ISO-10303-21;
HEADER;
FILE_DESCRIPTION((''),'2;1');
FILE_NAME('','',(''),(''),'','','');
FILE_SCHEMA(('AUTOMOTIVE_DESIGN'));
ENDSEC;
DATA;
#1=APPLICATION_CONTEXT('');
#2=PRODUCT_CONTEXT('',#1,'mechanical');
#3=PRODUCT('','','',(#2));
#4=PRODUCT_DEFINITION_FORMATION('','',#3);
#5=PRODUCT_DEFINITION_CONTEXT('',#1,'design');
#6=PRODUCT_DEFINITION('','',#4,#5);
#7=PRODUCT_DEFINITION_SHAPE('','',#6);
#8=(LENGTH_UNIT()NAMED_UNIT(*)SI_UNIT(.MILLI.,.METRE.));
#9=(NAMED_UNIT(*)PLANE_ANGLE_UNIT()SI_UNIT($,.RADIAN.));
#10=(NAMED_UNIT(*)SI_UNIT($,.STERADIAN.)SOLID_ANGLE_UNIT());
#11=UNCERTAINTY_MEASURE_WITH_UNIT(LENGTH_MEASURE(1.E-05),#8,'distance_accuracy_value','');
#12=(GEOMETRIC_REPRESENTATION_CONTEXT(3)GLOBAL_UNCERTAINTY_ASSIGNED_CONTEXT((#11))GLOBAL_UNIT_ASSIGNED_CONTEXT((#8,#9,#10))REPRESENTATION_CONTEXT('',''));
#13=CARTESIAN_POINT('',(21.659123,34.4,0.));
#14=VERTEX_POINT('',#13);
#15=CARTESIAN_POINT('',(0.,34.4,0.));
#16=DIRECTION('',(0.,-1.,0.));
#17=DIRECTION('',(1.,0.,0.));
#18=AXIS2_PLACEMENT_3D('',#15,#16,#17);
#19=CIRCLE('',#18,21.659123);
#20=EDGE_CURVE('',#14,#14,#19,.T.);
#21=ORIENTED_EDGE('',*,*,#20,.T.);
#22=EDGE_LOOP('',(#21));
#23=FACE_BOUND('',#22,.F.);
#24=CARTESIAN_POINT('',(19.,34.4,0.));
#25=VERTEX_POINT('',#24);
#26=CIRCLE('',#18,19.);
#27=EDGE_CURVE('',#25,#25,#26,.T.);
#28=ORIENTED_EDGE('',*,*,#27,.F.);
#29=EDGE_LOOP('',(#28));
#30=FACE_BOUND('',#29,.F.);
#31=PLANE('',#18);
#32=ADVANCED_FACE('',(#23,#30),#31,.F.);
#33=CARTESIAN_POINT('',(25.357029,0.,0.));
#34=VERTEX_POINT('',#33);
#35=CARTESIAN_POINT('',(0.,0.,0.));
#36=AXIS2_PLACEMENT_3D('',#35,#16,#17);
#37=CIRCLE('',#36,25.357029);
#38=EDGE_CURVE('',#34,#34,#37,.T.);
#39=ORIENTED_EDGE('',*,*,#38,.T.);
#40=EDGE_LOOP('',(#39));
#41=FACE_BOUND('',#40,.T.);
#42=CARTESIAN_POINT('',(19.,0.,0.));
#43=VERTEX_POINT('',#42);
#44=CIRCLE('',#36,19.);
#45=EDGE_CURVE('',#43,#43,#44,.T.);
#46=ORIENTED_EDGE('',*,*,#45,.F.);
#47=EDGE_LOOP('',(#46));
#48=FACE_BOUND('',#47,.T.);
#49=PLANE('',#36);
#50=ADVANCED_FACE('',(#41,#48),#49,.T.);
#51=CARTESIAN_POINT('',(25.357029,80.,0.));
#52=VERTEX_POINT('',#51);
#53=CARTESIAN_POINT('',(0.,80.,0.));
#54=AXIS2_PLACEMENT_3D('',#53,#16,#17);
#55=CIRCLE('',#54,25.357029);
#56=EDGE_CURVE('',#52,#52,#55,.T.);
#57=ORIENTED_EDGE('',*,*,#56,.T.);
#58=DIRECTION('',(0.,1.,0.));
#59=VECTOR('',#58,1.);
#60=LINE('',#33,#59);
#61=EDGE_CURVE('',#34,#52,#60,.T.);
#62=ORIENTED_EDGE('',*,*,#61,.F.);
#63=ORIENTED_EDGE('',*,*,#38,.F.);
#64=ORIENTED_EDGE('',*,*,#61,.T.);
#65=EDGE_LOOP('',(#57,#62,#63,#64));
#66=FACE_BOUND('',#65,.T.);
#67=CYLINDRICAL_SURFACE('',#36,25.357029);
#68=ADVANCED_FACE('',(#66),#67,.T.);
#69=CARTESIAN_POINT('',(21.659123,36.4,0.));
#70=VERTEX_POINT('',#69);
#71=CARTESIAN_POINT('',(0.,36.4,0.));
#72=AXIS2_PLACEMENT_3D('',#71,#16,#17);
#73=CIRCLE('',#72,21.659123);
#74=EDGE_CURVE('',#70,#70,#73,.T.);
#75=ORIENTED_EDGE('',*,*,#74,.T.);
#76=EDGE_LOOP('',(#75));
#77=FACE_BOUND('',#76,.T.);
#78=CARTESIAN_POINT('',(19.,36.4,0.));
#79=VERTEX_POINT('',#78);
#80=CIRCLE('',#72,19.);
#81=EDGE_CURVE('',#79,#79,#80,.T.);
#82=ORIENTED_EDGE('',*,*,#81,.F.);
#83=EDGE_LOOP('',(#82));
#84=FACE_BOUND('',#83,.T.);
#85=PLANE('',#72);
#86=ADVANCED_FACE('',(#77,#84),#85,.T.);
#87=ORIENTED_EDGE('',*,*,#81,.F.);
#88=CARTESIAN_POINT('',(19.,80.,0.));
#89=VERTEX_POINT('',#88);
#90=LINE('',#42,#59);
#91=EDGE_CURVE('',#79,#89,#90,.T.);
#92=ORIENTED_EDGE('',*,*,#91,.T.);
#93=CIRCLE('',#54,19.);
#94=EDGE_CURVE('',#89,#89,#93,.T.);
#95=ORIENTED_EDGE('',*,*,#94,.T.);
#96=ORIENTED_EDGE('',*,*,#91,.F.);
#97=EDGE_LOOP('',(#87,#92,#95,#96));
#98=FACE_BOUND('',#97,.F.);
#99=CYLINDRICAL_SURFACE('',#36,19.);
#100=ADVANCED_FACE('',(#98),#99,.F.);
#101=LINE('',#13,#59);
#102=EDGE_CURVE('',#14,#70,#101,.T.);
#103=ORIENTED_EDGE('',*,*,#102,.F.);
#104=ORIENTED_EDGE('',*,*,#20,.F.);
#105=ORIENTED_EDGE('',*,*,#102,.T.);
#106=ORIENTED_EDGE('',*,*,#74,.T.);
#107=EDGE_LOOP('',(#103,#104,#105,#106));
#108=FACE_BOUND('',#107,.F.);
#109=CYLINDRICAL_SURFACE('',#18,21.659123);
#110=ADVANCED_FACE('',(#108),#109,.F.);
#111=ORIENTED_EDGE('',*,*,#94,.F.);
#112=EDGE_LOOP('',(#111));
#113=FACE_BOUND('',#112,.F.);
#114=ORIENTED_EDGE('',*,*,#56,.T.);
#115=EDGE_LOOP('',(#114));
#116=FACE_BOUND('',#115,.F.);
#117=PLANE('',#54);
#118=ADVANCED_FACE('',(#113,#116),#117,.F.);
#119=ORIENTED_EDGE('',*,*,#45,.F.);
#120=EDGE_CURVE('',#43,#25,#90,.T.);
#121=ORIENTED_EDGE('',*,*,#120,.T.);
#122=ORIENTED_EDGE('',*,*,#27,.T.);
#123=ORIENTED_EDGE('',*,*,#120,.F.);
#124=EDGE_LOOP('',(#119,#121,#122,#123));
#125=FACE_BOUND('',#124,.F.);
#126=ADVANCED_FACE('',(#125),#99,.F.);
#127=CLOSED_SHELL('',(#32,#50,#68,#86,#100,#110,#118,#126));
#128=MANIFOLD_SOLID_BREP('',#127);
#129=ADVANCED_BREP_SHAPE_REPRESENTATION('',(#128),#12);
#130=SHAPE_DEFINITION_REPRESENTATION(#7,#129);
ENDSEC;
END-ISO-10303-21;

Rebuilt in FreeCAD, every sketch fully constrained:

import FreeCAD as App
import Part
import Sketcher
from FreeCAD import Vector

doc = App.newDocument("Part")
params = doc.addObject("Spreadsheet::Sheet", "Params")
for row, (alias, value) in enumerate([
    ("pad1_length", "80 mm"),
    ("sketch2_diameter", "38 mm"),
    ("pocket1_length", "99.8 mm"),
    ("pocket2_length", "2 mm"),
], start=1):
    params.set(f"A{row}", alias)
    params.set(f"B{row}", "=" + value)
    params.setAlias(f"B{row}", alias)

body = doc.addObject("PartDesign::Body", "Body")

sketch1 = doc.addObject("Sketcher::SketchObject", "Sketch")
body.addObject(sketch1)
sketch1.AttachmentSupport = (doc.XZ_Plane, [""])
sketch1.MapMode = "FlatFace"
sketch1.addGeometry(Part.Circle(Vector(0, 0, 0), Vector(0, 0, 1), 25), False)
sketch1.addConstraint(Sketcher.Constraint("Coincident", 0, 3, -1, 1))
sketch1.addConstraint(Sketcher.Constraint("Diameter", 0, 50.714058))
pad1 = doc.addObject("PartDesign::Pad", "Pad")
body.addObject(pad1)
pad1.Profile = sketch1
pad1.setExpression("Length", "Params.pad1_length")
pad1.Reversed = True

sketch2 = doc.addObject("Sketcher::SketchObject", "Sketch001")
body.addObject(sketch2)
sketch2.AttachmentSupport = (doc.XZ_Plane, [""])
sketch2.MapMode = "FlatFace"
sketch2.addGeometry(Part.Circle(Vector(0, 0, 0), Vector(0, 0, 1), 19), False)
sketch2.addConstraint(Sketcher.Constraint("Coincident", 0, 3, -1, 1))
sketch2.addConstraint(Sketcher.Constraint("Diameter", 0, 38.0))
sketch2.setExpression("Constraints[1]", "Params.sketch2_diameter")
pocket1 = doc.addObject("PartDesign::Pocket", "Pocket")
body.addObject(pocket1)
pocket1.Profile = sketch2
pocket1.setExpression("Length", "Params.pocket1_length")

sketch3 = doc.addObject("Sketcher::SketchObject", "Sketch002")
body.addObject(sketch3)
sketch3.AttachmentSupport = (doc.XZ_Plane, [""])
sketch3.MapMode = "FlatFace"
sketch3.AttachmentOffset = App.Placement(Vector(0, 0, -34.4), App.Rotation())
sketch3.addGeometry(Part.Circle(Vector(0, 0, 0), Vector(0, 0, 1), 22), False)
sketch3.addConstraint(Sketcher.Constraint("Coincident", 0, 3, -1, 1))
sketch3.addConstraint(Sketcher.Constraint("Diameter", 0, 43.318246))
pocket2 = doc.addObject("PartDesign::Pocket", "Pocket001")
body.addObject(pocket2)
pocket2.Profile = sketch3
pocket2.setExpression("Length", "Params.pocket2_length")

doc.recompute()
